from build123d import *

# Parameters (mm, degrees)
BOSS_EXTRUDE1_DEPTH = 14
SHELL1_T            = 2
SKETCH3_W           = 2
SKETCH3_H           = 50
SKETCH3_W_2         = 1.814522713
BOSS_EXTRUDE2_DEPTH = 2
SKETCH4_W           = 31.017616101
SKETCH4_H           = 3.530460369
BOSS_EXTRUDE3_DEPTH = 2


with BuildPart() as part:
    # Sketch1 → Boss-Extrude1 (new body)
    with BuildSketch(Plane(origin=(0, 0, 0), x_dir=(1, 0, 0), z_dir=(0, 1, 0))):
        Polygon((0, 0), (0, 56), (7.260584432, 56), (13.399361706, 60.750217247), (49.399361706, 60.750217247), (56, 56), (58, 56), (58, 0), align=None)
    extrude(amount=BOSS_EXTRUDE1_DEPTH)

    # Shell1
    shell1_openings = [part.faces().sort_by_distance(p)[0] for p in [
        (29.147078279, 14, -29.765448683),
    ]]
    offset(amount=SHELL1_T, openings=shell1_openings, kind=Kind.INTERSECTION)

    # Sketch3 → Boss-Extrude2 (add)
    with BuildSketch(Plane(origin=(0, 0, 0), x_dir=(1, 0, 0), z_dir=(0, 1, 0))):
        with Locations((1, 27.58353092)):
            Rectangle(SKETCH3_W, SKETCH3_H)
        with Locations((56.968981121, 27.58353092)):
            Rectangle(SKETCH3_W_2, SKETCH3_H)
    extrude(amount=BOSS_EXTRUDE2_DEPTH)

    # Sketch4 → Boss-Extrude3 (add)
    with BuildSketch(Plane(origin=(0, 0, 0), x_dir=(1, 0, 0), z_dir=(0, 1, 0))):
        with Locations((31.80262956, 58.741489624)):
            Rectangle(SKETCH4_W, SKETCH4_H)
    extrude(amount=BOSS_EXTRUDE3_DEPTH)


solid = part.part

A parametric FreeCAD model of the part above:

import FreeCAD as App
import Part
import Sketcher
from FreeCAD import Vector


def faces_at(feature, points):
    """Names of the faces that lie closest to the given points."""
    faces = feature.Shape.Faces
    near = lambda p: min(range(len(faces)), key=lambda i: faces[i].distToShape(Part.Vertex(*p))[0])
    return sorted({f"Face{near(p) + 1}" for p in points})


def add_polygon(sketch, points):
    """Adds a closed chain of lines whose ends are joined by coincident constraints."""
    first, n = sketch.GeometryCount, len(points)
    for a, b in zip(points, points[1:] + points[:1]):
        sketch.addGeometry(Part.LineSegment(App.Vector(*a, 0), App.Vector(*b, 0)), False)
    for i in range(n):
        sketch.addConstraint(Sketcher.Constraint("Coincident", first + i, 2, first + (i + 1) % n, 1))

doc = App.newDocument("Part")
body = doc.addObject("PartDesign::Body", "Body")

# Sketch on XZ plane
sketch1 = body.newObject("Sketcher::SketchObject", "Sketch")
sketch1.AttachmentSupport = (doc.getObject("XZ_Plane"), [""])
sketch1.MapMode = "FlatFace"
add_polygon(sketch1, [(0, -56), (0, 0), (58, 0), (58, -56), (56, -56), (49.399362, -60.750217), (13.399362, -60.750217), (7.260584, -56)])  # lines 0-7
sketch1.addConstraint([
    Sketcher.Constraint("Vertical", 0),
    Sketcher.Constraint("Horizontal", 1),
    Sketcher.Constraint("Vertical", 2),
    Sketcher.Constraint("Horizontal", 3),
    Sketcher.Constraint("Horizontal", 5),
    Sketcher.Constraint("Horizontal", 7),
    Sketcher.Constraint("Coincident", 0, 2, -1, 1),
    Sketcher.Constraint("Horizontal", 3, 2, 6, 2),
    Sketcher.Constraint("DistanceX", 1, 1, 1, 2, 58.0),
    Sketcher.Constraint("DistanceX", 3, 2, 3, 1, 2.0),
    Sketcher.Constraint("DistanceX", 5, 2, 5, 1, 36.0),
    Sketcher.Constraint("DistanceY", 0, 1, 0, 2, 56.0),
    Sketcher.Constraint("Distance", 4, 8.132219),
    Sketcher.Constraint("DistanceX", 7, 2, 7, 1, 7.260584),
    Sketcher.Constraint("DistanceX", -1, 1, 4, 2, 49.399362),
])
pad1 = body.newObject("PartDesign::Pad", "Pad")
pad1.Profile = sketch1
pad1.Length = 14
pad1.Reversed = True
doc.recompute()

thickness = body.newObject("PartDesign::Thickness", "Thickness")
thickness.Base = (pad1, faces_at(pad1, [(29, 14, -30.375)]))
thickness.Value = 2
thickness.Reversed = False
thickness.Join = "Intersection"

# Sketch on XZ plane
sketch2 = body.newObject("Sketcher::SketchObject", "Sketch001")
sketch2.AttachmentSupport = (doc.getObject("XZ_Plane"), [""])
sketch2.MapMode = "FlatFace"
add_polygon(sketch2, [(0, -52.583531), (0, -2.583531), (2, -2.583531), (2, -52.583531)])  # lines 0-3
add_polygon(sketch2, [(56.06172, -52.583531), (56.06172, -2.583531), (57.876242, -2.583531), (57.876242, -52.583531)])  # lines 4-7
sketch2.addConstraint([
    Sketcher.Constraint("Vertical", 0),
    Sketcher.Constraint("Horizontal", 1),
    Sketcher.Constraint("Vertical", 2),
    Sketcher.Constraint("Horizontal", 3),
    Sketcher.Constraint("Vertical", 4),
    Sketcher.Constraint("Horizontal", 5),
    Sketcher.Constraint("Vertical", 6),
    Sketcher.Constraint("Horizontal", 7),
    Sketcher.Constraint("PointOnObject", 0, 2, -2),
    Sketcher.Constraint("Horizontal", 1, 2, 4, 2),
    Sketcher.Constraint("Horizontal", 3, 2, 6, 2),
    Sketcher.Constraint("DistanceX", 1, 1, 1, 2, 2.0),
    Sketcher.Constraint("DistanceY", 0, 1, 0, 2, 50.0),
    Sketcher.Constraint("DistanceX", 5, 1, 5, 2, 1.814523),
    Sketcher.Constraint("DistanceY", 0, 2, -1, 1, 2.583531),
    Sketcher.Constraint("DistanceX", -1, 1, 4, 2, 56.06172),
])
pad2 = body.newObject("PartDesign::Pad", "Pad001")
pad2.Profile = sketch2
pad2.Length = 2
pad2.Reversed = True

# Sketch on XZ plane
sketch3 = body.newObject("Sketcher::SketchObject", "Sketch002")
sketch3.AttachmentSupport = (doc.getObject("XZ_Plane"), [""])
sketch3.MapMode = "FlatFace"
add_polygon(sketch3, [(16.293822, -60.50672), (16.293822, -56.976259), (47.311438, -56.976259), (47.311438, -60.50672)])  # lines 0-3
sketch3.addConstraint([
    Sketcher.Constraint("Vertical", 0),
    Sketcher.Constraint("Horizontal", 1),
    Sketcher.Constraint("Vertical", 2),
    Sketcher.Constraint("Horizontal", 3),
    Sketcher.Constraint("DistanceY", 0, 1, 0, 2, 3.53046),
    Sketcher.Constraint("DistanceX", 1, 1, 1, 2, 31.017616),
    Sketcher.Constraint("DistanceX", -1, 1, 0, 2, 16.293822),
    Sketcher.Constraint("DistanceY", 0, 2, -1, 1, 56.976259),
])
pad3 = body.newObject("PartDesign::Pad", "Pad002")
pad3.Profile = sketch3
pad3.Length = 2
pad3.Reversed = True

doc.recompute()
